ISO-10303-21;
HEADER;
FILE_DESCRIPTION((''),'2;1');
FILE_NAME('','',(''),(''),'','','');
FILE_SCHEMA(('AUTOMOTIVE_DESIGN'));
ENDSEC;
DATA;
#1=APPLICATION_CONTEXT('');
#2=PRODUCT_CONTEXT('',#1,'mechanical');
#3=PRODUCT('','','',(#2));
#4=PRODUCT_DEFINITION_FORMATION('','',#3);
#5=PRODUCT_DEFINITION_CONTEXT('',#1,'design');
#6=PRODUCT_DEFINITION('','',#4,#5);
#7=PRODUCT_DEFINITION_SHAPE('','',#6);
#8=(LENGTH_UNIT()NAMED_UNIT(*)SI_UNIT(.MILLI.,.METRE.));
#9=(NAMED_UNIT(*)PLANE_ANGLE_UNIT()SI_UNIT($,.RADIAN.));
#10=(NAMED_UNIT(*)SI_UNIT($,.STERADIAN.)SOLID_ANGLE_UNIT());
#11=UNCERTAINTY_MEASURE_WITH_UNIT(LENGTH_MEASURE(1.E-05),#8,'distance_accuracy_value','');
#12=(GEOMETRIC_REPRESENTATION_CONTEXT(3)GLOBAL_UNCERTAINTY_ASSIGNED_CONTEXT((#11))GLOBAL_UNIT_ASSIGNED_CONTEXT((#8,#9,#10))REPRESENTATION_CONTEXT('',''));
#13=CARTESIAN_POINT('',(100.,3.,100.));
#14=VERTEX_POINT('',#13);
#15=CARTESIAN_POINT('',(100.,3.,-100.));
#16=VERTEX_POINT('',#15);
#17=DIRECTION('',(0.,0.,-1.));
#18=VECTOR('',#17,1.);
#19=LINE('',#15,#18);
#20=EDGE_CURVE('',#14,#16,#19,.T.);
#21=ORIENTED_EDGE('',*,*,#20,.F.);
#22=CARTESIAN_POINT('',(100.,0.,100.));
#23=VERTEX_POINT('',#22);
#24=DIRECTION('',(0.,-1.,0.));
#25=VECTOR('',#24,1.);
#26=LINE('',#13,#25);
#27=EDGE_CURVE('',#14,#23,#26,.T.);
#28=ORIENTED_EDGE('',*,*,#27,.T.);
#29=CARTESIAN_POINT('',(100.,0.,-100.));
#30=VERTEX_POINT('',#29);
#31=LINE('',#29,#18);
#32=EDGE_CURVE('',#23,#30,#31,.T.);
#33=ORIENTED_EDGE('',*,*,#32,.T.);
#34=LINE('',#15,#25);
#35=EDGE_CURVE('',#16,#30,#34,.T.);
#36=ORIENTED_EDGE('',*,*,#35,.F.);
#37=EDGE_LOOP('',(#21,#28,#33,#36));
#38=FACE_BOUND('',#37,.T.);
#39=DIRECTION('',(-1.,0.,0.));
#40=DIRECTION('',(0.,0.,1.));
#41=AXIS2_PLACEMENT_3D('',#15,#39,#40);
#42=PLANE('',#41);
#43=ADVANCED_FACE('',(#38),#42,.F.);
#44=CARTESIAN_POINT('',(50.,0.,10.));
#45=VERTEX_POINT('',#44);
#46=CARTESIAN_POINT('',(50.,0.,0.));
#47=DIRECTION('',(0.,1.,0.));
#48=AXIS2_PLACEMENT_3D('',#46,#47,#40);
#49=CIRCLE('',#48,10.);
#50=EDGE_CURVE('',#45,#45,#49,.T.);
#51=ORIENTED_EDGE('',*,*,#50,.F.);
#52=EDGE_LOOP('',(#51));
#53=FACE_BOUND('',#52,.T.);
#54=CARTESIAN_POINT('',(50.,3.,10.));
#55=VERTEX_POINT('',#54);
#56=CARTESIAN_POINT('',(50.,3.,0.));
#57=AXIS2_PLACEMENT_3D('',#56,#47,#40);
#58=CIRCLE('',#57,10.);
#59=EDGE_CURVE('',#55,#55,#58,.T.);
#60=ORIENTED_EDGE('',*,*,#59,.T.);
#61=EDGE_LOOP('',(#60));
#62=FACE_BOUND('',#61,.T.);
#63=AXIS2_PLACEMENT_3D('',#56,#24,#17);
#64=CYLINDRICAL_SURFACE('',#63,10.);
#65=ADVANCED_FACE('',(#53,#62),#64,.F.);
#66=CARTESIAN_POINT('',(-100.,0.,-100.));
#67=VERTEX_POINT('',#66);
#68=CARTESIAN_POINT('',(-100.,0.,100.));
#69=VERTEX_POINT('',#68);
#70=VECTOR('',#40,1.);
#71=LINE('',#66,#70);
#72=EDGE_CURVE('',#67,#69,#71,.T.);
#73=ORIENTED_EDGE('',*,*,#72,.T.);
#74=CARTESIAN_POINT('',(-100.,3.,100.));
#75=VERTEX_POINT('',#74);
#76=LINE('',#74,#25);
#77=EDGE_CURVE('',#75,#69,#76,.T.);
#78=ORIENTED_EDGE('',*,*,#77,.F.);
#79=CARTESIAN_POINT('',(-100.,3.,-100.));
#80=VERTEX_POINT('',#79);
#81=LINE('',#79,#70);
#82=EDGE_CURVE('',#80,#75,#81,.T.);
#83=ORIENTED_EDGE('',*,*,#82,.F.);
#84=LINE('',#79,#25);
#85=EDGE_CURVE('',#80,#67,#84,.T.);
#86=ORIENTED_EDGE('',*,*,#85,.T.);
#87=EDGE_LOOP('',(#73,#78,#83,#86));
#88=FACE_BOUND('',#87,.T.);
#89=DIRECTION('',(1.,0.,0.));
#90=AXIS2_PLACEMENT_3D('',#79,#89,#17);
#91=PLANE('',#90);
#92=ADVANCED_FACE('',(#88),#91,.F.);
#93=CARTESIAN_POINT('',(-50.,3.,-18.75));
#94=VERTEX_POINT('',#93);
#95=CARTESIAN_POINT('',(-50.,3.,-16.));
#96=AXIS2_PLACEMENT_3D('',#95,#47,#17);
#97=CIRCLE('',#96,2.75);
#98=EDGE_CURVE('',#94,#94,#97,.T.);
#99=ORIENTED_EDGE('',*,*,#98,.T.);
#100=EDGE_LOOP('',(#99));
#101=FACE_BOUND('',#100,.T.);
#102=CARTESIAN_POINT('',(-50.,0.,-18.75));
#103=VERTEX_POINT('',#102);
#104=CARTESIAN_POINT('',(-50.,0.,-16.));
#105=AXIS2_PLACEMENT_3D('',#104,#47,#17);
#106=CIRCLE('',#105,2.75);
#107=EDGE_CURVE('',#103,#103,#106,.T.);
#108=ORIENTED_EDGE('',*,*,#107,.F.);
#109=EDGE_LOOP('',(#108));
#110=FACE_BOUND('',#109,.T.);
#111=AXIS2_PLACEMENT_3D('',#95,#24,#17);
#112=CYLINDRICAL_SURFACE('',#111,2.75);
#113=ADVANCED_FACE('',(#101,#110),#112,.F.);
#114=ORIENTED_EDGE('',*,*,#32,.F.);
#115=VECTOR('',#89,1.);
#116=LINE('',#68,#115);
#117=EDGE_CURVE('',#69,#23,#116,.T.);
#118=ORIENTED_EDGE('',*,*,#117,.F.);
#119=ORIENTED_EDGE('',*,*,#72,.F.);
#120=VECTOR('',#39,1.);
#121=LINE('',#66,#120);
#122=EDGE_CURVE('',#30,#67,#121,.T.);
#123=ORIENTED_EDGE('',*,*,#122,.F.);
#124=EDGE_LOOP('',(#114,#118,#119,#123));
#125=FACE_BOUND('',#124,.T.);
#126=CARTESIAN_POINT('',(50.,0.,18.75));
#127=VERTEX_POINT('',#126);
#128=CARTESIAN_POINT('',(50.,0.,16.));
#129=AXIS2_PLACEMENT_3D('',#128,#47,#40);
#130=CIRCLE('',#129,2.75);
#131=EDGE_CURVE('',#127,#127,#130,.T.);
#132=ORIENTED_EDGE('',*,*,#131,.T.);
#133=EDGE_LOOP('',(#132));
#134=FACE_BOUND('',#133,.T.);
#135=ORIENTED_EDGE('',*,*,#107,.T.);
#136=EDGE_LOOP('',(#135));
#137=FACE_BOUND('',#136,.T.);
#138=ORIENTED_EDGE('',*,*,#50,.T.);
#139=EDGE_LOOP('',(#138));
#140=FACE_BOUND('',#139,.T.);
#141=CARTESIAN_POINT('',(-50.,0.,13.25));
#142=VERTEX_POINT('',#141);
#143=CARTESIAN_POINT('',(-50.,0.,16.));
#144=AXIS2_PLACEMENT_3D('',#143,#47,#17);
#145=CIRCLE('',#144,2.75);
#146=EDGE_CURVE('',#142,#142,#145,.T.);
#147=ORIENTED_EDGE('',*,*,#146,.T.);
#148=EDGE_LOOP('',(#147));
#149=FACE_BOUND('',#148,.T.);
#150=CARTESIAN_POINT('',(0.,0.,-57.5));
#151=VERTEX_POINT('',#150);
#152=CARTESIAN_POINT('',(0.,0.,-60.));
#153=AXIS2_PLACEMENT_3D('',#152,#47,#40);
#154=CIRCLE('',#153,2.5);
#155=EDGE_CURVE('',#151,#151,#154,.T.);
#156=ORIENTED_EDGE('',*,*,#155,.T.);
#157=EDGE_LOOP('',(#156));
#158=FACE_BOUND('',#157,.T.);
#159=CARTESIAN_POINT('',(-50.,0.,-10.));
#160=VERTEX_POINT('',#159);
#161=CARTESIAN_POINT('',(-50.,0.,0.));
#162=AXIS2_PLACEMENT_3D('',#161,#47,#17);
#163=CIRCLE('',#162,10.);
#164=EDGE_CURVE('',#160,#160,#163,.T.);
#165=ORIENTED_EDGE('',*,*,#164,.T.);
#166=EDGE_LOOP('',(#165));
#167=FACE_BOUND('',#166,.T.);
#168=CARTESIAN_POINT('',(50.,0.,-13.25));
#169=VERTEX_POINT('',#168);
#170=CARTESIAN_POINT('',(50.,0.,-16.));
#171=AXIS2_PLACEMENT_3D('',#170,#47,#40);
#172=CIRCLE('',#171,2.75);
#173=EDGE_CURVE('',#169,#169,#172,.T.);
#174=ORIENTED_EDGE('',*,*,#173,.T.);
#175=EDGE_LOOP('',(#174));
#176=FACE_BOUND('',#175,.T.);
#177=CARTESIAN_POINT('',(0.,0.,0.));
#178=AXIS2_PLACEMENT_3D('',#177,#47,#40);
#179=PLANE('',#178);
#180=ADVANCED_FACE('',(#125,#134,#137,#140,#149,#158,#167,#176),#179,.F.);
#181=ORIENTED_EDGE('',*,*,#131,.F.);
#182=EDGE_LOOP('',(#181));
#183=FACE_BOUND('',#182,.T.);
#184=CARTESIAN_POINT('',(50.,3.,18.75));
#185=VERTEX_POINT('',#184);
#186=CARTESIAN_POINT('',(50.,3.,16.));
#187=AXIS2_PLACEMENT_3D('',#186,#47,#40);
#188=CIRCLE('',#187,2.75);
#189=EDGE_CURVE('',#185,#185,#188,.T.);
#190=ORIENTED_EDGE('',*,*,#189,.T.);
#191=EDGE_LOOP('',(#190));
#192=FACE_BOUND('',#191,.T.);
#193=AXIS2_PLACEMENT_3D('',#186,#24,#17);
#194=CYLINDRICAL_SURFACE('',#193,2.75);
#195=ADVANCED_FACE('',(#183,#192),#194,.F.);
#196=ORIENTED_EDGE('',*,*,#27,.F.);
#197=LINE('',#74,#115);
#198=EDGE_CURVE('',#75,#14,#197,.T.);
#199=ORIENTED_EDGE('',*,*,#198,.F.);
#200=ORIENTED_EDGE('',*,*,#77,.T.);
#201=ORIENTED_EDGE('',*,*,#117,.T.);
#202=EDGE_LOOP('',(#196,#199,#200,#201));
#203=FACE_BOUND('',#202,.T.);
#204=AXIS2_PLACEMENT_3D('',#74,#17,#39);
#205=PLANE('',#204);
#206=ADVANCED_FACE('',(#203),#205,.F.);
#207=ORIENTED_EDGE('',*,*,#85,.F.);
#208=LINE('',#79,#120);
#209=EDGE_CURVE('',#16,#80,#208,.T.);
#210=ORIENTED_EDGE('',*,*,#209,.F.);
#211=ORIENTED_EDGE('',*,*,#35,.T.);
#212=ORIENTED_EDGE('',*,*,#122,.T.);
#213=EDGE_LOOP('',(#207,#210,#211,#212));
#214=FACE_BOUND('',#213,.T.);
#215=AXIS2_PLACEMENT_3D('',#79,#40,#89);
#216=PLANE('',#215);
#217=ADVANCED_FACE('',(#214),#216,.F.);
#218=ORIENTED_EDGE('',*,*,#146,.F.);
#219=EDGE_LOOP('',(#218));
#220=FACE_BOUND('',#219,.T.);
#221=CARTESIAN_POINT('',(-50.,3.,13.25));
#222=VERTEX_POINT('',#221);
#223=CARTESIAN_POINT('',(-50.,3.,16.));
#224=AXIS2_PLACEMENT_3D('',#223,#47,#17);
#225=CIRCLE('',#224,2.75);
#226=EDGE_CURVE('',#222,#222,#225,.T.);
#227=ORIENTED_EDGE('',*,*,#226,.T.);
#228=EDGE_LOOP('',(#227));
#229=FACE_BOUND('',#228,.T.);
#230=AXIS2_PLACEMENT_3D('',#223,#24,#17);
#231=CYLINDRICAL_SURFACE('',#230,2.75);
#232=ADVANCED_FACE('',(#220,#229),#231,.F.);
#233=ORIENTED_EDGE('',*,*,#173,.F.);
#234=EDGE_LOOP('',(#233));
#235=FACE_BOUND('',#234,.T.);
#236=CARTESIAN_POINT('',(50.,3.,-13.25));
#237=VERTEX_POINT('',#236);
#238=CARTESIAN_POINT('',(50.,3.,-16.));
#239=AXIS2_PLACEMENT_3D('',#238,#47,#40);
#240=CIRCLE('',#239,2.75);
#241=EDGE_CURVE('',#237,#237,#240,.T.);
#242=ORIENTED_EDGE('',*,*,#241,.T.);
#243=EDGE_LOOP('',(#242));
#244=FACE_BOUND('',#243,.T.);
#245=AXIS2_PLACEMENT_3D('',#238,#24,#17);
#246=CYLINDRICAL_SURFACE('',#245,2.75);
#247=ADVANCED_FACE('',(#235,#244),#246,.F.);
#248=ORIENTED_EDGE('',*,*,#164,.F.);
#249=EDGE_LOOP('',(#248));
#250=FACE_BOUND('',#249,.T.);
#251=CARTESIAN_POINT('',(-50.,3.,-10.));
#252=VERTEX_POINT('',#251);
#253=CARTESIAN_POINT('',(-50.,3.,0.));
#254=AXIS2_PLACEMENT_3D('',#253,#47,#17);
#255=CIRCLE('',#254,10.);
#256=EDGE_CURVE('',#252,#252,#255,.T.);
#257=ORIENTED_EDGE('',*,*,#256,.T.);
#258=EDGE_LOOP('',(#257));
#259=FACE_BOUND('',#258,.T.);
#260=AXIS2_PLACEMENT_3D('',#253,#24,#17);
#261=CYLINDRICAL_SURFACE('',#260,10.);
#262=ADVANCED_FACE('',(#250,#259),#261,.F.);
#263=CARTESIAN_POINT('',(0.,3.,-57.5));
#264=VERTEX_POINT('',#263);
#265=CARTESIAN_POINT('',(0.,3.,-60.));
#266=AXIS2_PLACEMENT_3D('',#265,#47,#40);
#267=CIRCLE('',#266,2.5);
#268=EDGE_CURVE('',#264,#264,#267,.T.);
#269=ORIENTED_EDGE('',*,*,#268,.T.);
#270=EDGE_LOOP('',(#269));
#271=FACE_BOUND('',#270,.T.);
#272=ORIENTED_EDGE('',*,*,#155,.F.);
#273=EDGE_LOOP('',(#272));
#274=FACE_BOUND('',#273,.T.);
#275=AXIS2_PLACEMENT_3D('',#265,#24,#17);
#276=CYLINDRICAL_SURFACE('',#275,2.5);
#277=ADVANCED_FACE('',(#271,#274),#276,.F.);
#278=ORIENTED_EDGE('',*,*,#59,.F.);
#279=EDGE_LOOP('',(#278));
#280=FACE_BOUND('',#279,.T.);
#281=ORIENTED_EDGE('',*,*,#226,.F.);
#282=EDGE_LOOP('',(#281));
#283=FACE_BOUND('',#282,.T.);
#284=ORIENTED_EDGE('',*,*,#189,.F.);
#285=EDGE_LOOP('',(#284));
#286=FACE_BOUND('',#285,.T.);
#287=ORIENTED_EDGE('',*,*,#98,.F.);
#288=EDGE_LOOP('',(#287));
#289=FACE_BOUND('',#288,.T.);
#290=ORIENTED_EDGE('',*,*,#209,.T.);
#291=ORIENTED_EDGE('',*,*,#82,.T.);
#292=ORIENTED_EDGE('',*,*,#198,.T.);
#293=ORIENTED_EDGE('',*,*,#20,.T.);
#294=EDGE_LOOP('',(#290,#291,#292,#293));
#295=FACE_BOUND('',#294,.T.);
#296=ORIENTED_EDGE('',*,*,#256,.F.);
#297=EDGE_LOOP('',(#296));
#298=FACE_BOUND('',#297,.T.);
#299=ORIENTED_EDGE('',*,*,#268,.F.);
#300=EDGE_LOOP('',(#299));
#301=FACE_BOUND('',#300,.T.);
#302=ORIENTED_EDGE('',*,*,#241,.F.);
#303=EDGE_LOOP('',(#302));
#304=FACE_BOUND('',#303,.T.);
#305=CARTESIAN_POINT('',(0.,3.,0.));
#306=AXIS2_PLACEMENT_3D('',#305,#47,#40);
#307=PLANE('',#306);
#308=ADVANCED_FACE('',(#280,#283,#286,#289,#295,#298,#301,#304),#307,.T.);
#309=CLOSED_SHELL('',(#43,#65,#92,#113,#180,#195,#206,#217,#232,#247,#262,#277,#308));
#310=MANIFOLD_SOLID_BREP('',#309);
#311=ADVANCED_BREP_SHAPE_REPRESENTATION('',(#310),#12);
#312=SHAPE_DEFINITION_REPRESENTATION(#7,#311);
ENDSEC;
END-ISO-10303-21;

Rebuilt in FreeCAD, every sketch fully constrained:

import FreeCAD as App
import Part
import Sketcher

V = App.Vector
Q = App.Units.Quantity

doc = App.newDocument("Part")
body = doc.addObject("PartDesign::Body", "Body")

# Sketch on XZ plane
sketch1 = body.newObject("Sketcher::SketchObject", "Sketch")
sketch1.AttachmentSupport = (doc.getObject("XZ_Plane"), [""])
sketch1.MapMode = "FlatFace"
sketch1.addGeometry(Part.LineSegment(V(-100, -100, 0), V(-100, 100, 0)), False)
sketch1.addGeometry(Part.LineSegment(V(-100, 100, 0), V(100, 100, 0)), False)
sketch1.addGeometry(Part.LineSegment(V(100, 100, 0), V(100, -100, 0)), False)
sketch1.addGeometry(Part.LineSegment(V(100, -100, 0), V(-100, -100, 0)), False)
sketch1.addGeometry(Part.Circle(V(-50, 16, 0), V(0, 0, 1), 2.8), False)
sketch1.addGeometry(Part.Circle(V(-50, 0, 0), V(0, 0, 1), 10), False)
sketch1.addGeometry(Part.Circle(V(-50, -16, 0), V(0, 0, 1), 2.8), False)
sketch1.addGeometry(Part.Circle(V(50, 16, 0), V(0, 0, 1), 2.8), False)
sketch1.addGeometry(Part.Circle(V(50, 0, 0), V(0, 0, 1), 10), False)
sketch1.addGeometry(Part.Circle(V(50, -16, 0), V(0, 0, 1), 2.8), False)
sketch1.addGeometry(Part.Circle(V(0, -60, 0), V(0, 0, 1), 2.5), False)
sketch1.addConstraint(Sketcher.Constraint("Coincident", 0, 2, 1, 1))
sketch1.addConstraint(Sketcher.Constraint("Coincident", 1, 2, 2, 1))
sketch1.addConstraint(Sketcher.Constraint("Coincident", 2, 2, 3, 1))
sketch1.addConstraint(Sketcher.Constraint("Coincident", 3, 2, 0, 1))
sketch1.addConstraint(Sketcher.Constraint("Vertical", 0))
sketch1.addConstraint(Sketcher.Constraint("Horizontal", 1))
sketch1.addConstraint(Sketcher.Constraint("Vertical", 2))
sketch1.addConstraint(Sketcher.Constraint("Horizontal", 3))
sketch1.addConstraint(Sketcher.Constraint("Equal", 4, 6))
sketch1.addConstraint(Sketcher.Constraint("Equal", 6, 7))
sketch1.addConstraint(Sketcher.Constraint("Equal", 5, 8))
sketch1.addConstraint(Sketcher.Constraint("Equal", 7, 9))
sketch1.addConstraint(Sketcher.Constraint("Symmetric", 6, 3, 7, 3, -1, 1))
sketch1.addConstraint(Sketcher.Constraint("Symmetric", 5, 3, 8, 3, -1, 1))
sketch1.addConstraint(Sketcher.Constraint("Symmetric", 4, 3, 9, 3, -1, 1))
sketch1.addConstraint(Sketcher.Constraint("Symmetric", 0, 2, 2, 2, -1, 1))
sketch1.addConstraint(Sketcher.Constraint("Symmetric", 4, 3, 7, 3, -2))
sketch1.addConstraint(Sketcher.Constraint("PointOnObject", 5, 3, -1))
sketch1.addConstraint(Sketcher.Constraint("PointOnObject", 10, 3, -2))
sketch1.addConstraint(Sketcher.Constraint("Vertical", 4, 3, 5, 3))
sketch1.addConstraint(Sketcher.Constraint("Equal", 3, 0))
sketch1.addConstraint(Sketcher.Constraint("Diameter", 5, Q("20 mm")))
sketch1.addConstraint(Sketcher.Constraint("Diameter", 10, Q("5 mm")))
sketch1.addConstraint(Sketcher.Constraint("Diameter", 4, Q("5.5 mm")))
sketch1.addConstraint(Sketcher.Constraint("DistanceX", 1, 1, 1, 2, Q("200 mm")))
sketch1.addConstraint(Sketcher.Constraint("DistanceX", 4, 3, -1, 1, Q("50 mm")))
sketch1.addConstraint(Sketcher.Constraint("DistanceY", -1, 1, 4, 3, Q("16 mm")))
sketch1.addConstraint(Sketcher.Constraint("DistanceY", 10, 3, -1, 1, Q("60 mm")))
pad1 = body.newObject("PartDesign::Pad", "Pad")
pad1.Profile = sketch1
pad1.Length = 3
pad1.Reversed = True

doc.recompute()
